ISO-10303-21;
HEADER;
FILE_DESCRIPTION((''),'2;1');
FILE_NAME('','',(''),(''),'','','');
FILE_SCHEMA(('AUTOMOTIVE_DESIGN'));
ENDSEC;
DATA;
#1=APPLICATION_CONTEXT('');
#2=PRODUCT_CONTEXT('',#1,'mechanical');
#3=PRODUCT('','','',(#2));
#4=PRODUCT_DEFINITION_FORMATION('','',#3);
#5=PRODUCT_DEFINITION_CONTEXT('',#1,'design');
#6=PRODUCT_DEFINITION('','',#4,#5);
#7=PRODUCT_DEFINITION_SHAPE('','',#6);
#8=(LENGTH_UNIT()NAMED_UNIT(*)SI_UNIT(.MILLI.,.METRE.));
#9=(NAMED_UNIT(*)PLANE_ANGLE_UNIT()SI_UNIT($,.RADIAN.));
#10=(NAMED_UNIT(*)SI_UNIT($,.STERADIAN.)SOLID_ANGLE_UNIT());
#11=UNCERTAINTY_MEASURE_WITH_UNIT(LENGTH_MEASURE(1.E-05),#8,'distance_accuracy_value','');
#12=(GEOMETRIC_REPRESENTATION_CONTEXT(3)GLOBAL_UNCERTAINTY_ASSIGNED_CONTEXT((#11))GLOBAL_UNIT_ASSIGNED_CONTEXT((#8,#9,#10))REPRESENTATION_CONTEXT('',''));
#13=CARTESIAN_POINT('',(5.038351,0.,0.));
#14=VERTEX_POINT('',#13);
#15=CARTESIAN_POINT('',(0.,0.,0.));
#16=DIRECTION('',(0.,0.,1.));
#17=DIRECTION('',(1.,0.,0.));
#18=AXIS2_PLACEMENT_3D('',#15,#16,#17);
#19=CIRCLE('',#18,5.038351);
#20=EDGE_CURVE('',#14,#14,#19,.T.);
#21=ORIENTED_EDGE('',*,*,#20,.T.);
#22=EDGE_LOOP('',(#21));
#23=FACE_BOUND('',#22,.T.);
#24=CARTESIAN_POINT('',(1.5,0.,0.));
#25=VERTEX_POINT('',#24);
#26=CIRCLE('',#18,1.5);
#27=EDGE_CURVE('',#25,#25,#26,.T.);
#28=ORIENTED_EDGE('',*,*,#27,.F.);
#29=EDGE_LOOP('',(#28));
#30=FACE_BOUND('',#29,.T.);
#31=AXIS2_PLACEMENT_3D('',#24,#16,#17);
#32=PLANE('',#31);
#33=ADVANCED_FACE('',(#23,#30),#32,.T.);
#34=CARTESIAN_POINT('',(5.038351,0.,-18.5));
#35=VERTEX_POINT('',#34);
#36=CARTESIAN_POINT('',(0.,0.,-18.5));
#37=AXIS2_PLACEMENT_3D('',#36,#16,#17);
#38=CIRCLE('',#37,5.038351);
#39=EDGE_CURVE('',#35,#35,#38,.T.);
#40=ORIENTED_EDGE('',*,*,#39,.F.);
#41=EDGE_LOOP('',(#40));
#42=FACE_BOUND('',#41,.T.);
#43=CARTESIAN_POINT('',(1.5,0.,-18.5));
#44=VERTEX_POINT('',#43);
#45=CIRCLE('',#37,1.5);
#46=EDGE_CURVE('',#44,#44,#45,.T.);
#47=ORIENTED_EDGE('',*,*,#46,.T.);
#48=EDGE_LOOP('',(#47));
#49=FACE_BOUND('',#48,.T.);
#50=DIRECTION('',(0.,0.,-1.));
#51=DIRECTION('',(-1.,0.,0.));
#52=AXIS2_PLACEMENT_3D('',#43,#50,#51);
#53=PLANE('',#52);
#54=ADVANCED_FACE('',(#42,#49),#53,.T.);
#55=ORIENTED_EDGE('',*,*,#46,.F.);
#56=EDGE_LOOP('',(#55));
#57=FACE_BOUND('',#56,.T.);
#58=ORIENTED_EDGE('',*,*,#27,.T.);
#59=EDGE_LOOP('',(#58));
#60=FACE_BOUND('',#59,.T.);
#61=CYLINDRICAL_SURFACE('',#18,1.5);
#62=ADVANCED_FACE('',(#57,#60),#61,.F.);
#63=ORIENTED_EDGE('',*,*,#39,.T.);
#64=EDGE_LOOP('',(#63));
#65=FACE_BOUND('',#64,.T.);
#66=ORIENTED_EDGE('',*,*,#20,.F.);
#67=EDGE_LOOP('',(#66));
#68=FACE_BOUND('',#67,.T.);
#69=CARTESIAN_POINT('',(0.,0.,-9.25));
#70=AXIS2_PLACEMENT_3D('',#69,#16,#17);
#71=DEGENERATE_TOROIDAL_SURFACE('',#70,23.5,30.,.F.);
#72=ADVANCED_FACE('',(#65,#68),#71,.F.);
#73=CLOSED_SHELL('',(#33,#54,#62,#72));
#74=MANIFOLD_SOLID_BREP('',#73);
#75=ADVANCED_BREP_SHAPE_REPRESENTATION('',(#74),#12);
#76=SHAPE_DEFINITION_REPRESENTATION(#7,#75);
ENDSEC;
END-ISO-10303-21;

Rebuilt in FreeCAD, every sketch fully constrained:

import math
import FreeCAD as App
import Part
import Sketcher
from FreeCAD import Vector

doc = App.newDocument("Part")
params = doc.addObject("Spreadsheet::Sheet", "Params")
for row, (alias, value) in enumerate([
    ("sketch1_radius", "30 mm"),
    ("sketch1_height", "18.5 mm"),
    ("revolution_angle", "360 deg"),
], start=1):
    params.set(f"A{row}", alias)
    params.set(f"B{row}", "=" + value)
    params.setAlias(f"B{row}", alias)

body = doc.addObject("PartDesign::Body", "Body")

sketch1 = body.newObject("Sketcher::SketchObject", "Sketch")
sketch1.AttachmentSupport = (doc.getObject("XZ_Plane"), [""])
sketch1.MapMode = "FlatFace"
sketch1.addGeometry([
    Part.LineSegment(Vector(1.5, -18.5, 0), Vector(1.5, 0, 0)),
    Part.LineSegment(Vector(1.5, 0, 0), Vector(5.038351, 0, 0)),
    Part.ArcOfCircle(Part.Circle(Vector(-23.5, -9.25, 0), Vector(0, 0, 1), 30), math.radians(-17.958818), math.radians(17.958818)),
    Part.LineSegment(Vector(5.038351, -18.5, 0), Vector(1.5, -18.5, 0)),
], False)
sketch1.addConstraint([
    Sketcher.Constraint("Coincident", 0, 2, 1, 1),
    Sketcher.Constraint("Coincident", 1, 2, 2, 2),
    Sketcher.Constraint("Coincident", 2, 1, 3, 1),
    Sketcher.Constraint("Coincident", 3, 2, 0, 1),
    Sketcher.Constraint("Vertical", 0),
    Sketcher.Constraint("Horizontal", 1),
    Sketcher.Constraint("Horizontal", 3),
    Sketcher.Constraint("PointOnObject", 0, 2, -1),
    Sketcher.Constraint("Vertical", 1, 2, 2, 1),
    Sketcher.Constraint("Radius", 2, 30.0),
    Sketcher.Constraint("DistanceY", 0, 1, 0, 2, 18.5),
    Sketcher.Constraint("DistanceX", 2, 3, 0, 2, 25.0),
    Sketcher.Constraint("DistanceX", 2, 3, -1, 1, 23.5),
])
sketch1.setExpression("Constraints[9]", "Params.sketch1_radius")
sketch1.setExpression("Constraints[10]", "Params.sketch1_height")
revolution = body.newObject("PartDesign::Revolution", "Revolution")
revolution.Profile = sketch1
revolution.ReferenceAxis = (sketch1, ["V_Axis"])
revolution.setExpression("Angle", "Params.revolution_angle")

doc.recompute()
